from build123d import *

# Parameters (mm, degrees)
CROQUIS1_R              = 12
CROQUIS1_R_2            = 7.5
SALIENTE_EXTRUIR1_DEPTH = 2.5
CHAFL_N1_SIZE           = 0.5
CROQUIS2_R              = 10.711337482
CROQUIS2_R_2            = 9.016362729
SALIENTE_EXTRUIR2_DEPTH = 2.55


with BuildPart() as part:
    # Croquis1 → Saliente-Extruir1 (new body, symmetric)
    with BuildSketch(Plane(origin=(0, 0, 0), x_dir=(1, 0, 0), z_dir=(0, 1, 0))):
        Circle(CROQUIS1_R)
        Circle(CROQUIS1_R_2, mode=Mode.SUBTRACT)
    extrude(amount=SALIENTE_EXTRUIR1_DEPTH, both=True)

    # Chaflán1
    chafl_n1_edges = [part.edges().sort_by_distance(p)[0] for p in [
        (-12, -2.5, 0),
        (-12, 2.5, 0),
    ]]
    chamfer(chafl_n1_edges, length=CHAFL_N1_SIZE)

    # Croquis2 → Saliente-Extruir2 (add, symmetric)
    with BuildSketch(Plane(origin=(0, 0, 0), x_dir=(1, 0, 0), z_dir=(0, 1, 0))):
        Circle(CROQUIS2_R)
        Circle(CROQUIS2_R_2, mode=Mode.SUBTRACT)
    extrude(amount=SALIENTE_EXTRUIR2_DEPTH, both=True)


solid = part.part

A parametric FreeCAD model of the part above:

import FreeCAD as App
import Part
import Sketcher
Q = App.Units.Quantity


def edges_at(feature, points):
    """Names of the edges that pass closest to the given points."""
    edges = feature.Shape.Edges
    near = lambda p: min(range(len(edges)), key=lambda i: edges[i].distToShape(Part.Vertex(*p))[0])
    return sorted({f"Edge{near(p) + 1}" for p in points})

doc = App.newDocument("Part")
body = doc.addObject("PartDesign::Body", "Body")

# Sketch on XZ plane
sketch1 = body.newObject("Sketcher::SketchObject", "Sketch")
sketch1.AttachmentSupport = (doc.getObject("XZ_Plane"), [""])
sketch1.MapMode = "FlatFace"
sketch1.addGeometry(Part.Circle(App.Vector(0, 0, 0), App.Vector(0, 0, 1), 12), False)
sketch1.addGeometry(Part.Circle(App.Vector(0, 0, 0), App.Vector(0, 0, 1), 8), False)
sketch1.addConstraint(Sketcher.Constraint("Coincident", 0, 3, -1, 1))
sketch1.addConstraint(Sketcher.Constraint("Coincident", 1, 3, -1, 1))
sketch1.addConstraint(Sketcher.Constraint("Diameter", 0, Q("24 mm")))
sketch1.addConstraint(Sketcher.Constraint("Diameter", 1, Q("15 mm")))
pad1 = body.newObject("PartDesign::Pad", "Pad")
pad1.Profile = sketch1
pad1.Length = 5
pad1.Midplane = True
doc.recompute()

chamfer = body.newObject("PartDesign::Chamfer", "Chamfer")
chamfer.Base = (pad1, edges_at(pad1, [(-12, -2.5, 0), (-12, 2.5, 0)]))
chamfer.Size = 0.5

# Sketch on XZ plane
sketch2 = body.newObject("Sketcher::SketchObject", "Sketch001")
sketch2.AttachmentSupport = (doc.getObject("XZ_Plane"), [""])
sketch2.MapMode = "FlatFace"
sketch2.addGeometry(Part.Circle(App.Vector(0, 0, 0), App.Vector(0, 0, 1), 11), False)
sketch2.addGeometry(Part.Circle(App.Vector(0, 0, 0), App.Vector(0, 0, 1), 9), False)
sketch2.addConstraint(Sketcher.Constraint("Coincident", 0, 3, -1, 1))
sketch2.addConstraint(Sketcher.Constraint("Coincident", 1, 3, -1, 1))
sketch2.addConstraint(Sketcher.Constraint("Diameter", 0, Q("21.422675 mm")))
sketch2.addConstraint(Sketcher.Constraint("Diameter", 1, Q("18.032725 mm")))
pad2 = body.newObject("PartDesign::Pad", "Pad001")
pad2.Profile = sketch2
pad2.Length = 5.1
pad2.Midplane = True

doc.recompute()
